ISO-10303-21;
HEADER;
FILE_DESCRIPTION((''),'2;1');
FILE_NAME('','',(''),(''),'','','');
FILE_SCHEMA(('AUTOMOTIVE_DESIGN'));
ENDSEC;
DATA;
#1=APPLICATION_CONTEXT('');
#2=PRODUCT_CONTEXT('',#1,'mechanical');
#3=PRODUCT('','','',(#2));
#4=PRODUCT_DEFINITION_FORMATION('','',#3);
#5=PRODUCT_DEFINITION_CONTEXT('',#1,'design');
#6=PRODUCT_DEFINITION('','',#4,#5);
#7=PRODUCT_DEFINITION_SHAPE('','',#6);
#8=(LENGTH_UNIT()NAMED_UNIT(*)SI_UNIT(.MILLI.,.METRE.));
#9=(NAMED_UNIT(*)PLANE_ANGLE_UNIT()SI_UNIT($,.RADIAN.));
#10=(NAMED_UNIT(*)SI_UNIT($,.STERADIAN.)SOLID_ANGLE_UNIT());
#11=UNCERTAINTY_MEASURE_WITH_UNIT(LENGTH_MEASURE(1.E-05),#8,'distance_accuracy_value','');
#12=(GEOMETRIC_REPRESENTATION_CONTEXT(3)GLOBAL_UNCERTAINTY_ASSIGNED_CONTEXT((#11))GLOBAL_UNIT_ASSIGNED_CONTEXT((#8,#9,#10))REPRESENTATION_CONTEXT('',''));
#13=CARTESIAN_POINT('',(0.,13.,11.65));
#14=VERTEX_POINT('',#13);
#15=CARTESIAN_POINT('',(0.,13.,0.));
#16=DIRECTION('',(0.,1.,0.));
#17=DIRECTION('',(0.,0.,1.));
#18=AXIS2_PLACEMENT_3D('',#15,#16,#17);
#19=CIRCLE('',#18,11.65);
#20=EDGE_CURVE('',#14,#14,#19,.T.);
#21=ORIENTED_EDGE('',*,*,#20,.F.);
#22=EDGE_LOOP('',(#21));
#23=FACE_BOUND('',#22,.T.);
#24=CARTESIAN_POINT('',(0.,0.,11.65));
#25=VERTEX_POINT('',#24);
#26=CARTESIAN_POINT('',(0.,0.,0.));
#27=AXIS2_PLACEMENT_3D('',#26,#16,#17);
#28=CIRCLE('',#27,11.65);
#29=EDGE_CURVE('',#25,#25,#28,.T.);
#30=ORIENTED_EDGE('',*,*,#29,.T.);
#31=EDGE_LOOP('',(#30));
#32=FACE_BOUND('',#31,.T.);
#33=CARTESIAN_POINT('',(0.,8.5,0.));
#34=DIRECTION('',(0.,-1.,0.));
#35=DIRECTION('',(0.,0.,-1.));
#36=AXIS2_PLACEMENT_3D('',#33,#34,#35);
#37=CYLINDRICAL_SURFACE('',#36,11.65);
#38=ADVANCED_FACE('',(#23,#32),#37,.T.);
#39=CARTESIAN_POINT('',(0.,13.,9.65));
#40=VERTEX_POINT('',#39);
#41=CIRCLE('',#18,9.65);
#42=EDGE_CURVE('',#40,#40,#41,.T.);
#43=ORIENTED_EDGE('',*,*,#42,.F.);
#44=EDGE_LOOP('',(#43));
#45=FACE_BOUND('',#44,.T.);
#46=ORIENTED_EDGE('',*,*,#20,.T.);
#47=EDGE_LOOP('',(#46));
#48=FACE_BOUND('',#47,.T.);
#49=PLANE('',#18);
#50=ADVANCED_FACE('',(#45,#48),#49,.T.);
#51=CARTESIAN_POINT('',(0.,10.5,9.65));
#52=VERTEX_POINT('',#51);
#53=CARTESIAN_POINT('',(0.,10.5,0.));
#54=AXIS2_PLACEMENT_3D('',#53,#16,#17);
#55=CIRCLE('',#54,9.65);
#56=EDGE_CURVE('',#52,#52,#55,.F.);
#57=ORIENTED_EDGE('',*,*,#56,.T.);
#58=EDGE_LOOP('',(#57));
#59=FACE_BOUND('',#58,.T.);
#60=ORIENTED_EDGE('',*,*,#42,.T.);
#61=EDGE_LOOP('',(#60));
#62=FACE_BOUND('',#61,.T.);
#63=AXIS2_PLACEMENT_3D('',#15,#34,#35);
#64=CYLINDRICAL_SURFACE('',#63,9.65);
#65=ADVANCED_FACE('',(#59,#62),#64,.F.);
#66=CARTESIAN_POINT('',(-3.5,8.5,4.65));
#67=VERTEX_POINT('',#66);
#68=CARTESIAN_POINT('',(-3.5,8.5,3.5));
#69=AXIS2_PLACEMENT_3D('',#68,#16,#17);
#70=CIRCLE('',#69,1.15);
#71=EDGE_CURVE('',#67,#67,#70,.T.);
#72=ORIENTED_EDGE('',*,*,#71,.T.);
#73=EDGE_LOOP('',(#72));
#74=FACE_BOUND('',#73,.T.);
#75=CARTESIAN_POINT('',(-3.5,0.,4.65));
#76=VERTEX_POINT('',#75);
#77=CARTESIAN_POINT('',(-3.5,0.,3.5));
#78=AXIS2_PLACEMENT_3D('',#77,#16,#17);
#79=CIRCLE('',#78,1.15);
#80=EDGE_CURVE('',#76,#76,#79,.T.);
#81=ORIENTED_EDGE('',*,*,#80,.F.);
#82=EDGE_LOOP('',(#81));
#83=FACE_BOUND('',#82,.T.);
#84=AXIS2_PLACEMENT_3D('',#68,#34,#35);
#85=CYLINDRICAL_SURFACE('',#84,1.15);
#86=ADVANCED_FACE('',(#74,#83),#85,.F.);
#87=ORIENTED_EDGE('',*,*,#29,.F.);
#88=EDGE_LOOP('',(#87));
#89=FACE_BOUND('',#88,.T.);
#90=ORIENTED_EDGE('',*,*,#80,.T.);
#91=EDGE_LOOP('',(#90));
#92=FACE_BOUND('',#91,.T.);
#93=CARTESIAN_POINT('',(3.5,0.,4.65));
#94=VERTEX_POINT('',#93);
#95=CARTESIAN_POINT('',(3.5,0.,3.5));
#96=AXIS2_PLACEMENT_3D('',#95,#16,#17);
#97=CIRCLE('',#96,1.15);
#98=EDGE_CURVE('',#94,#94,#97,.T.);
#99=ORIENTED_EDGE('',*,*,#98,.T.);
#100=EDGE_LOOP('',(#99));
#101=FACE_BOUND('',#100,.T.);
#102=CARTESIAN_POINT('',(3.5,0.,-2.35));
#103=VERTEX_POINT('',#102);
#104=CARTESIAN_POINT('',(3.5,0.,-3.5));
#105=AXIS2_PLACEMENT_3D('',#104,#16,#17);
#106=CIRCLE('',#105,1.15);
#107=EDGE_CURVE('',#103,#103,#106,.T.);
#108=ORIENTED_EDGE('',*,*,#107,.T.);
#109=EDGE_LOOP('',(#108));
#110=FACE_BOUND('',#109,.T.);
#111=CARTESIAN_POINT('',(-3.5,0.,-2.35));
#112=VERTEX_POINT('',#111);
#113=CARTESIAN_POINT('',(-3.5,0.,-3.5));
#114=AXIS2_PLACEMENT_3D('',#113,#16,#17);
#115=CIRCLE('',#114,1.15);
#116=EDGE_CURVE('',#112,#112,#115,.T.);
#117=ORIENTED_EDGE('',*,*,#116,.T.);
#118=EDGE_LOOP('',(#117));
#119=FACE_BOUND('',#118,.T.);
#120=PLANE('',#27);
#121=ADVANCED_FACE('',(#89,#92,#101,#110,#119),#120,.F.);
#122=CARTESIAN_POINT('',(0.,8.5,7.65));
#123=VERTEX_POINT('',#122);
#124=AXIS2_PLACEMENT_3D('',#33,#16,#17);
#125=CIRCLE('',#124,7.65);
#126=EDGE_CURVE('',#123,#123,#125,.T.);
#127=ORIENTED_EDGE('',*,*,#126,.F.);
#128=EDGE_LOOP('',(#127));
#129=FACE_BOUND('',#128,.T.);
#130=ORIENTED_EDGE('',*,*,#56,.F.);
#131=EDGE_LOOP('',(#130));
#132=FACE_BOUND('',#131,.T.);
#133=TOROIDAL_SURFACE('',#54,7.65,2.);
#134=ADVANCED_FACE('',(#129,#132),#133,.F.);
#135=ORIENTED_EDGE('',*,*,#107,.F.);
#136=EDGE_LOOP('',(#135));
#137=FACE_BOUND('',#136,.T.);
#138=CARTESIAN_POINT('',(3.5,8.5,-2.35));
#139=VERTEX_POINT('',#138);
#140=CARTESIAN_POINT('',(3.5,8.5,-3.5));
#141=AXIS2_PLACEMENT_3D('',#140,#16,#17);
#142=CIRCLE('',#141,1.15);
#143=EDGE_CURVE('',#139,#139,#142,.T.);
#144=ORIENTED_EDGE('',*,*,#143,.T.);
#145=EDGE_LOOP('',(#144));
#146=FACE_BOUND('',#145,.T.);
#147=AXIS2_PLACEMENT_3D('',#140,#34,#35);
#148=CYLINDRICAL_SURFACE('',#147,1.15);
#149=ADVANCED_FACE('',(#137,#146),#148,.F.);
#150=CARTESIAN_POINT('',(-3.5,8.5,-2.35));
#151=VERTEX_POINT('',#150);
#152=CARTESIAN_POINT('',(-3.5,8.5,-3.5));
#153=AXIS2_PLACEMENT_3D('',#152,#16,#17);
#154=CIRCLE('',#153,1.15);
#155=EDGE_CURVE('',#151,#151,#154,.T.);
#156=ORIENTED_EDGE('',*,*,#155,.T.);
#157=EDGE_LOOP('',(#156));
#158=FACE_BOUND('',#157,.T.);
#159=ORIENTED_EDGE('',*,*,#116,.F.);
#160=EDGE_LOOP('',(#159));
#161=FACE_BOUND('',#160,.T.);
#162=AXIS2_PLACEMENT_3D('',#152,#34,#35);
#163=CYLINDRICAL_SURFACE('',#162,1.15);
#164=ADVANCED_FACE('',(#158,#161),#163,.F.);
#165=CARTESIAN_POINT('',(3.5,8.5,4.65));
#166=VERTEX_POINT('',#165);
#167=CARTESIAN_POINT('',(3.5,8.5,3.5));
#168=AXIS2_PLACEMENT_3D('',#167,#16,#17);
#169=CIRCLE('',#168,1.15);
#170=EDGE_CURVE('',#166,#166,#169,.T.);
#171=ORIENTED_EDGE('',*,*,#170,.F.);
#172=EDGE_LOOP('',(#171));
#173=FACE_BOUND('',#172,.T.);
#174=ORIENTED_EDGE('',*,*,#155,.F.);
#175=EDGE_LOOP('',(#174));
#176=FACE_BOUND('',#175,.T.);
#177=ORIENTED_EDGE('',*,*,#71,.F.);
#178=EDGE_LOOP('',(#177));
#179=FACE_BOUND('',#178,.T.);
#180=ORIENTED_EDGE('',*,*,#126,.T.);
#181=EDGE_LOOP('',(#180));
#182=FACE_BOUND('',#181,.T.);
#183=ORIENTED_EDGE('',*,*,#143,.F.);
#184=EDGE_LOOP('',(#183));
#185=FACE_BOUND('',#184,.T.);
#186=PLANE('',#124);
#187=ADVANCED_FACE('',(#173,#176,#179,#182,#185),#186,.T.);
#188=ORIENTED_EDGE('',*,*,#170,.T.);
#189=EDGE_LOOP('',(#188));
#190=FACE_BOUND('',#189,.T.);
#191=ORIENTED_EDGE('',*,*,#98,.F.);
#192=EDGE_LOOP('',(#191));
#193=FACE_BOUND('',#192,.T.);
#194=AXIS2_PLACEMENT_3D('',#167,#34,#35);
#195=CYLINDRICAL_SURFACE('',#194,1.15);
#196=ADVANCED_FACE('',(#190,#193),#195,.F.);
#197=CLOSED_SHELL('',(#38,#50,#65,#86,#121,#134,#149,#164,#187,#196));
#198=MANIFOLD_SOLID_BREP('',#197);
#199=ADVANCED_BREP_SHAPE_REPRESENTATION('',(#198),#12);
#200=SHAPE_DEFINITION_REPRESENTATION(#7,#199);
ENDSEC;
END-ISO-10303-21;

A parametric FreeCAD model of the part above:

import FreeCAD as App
import Part
import Sketcher

V = App.Vector
Q = App.Units.Quantity


def edges_at(feature, points):
    """Names of the edges that pass closest to the given points."""
    edges = feature.Shape.Edges
    near = lambda p: min(range(len(edges)), key=lambda i: edges[i].distToShape(Part.Vertex(*p))[0])
    return sorted({f"Edge{near(p) + 1}" for p in points})

doc = App.newDocument("Part")
body = doc.addObject("PartDesign::Body", "Body")

# Sketch on XZ plane
sketch1 = body.newObject("Sketcher::SketchObject", "Sketch")
sketch1.AttachmentSupport = (doc.getObject("XZ_Plane"), [""])
sketch1.MapMode = "FlatFace"
sketch1.addGeometry(Part.Circle(V(0, 0, 0), V(0, 0, 1), 11.7), False)
sketch1.addGeometry(Part.Circle(V(-3.5, -3.5, 0), V(0, 0, 1), 1.1), False)
sketch1.addGeometry(Part.Circle(V(-3.5, 3.5, 0), V(0, 0, 1), 1.1), False)
sketch1.addGeometry(Part.Circle(V(3.5, -3.5, 0), V(0, 0, 1), 1.1), False)
sketch1.addGeometry(Part.Circle(V(3.5, 3.5, 0), V(0, 0, 1), 1.1), False)
sketch1.addConstraint(Sketcher.Constraint("Coincident", 0, 3, -1, 1))
sketch1.addConstraint(Sketcher.Constraint("Equal", 1, 2))
sketch1.addConstraint(Sketcher.Constraint("Equal", 2, 3))
sketch1.addConstraint(Sketcher.Constraint("Equal", 3, 4))
sketch1.addConstraint(Sketcher.Constraint("Symmetric", 2, 3, 3, 3, -1, 1))
sketch1.addConstraint(Sketcher.Constraint("Symmetric", 1, 3, 4, 3, -1, 1))
sketch1.addConstraint(Sketcher.Constraint("Symmetric", 1, 3, 3, 3, -2))
sketch1.addConstraint(Sketcher.Constraint("Diameter", 0, Q("23.3 mm")))
sketch1.addConstraint(Sketcher.Constraint("Diameter", 1, Q("2.3 mm")))
sketch1.addConstraint(Sketcher.Constraint("DistanceY", 1, 3, 2, 3, Q("7 mm")))
sketch1.addConstraint(Sketcher.Constraint("DistanceX", 1, 3, 3, 3, Q("7 mm")))
pad1 = body.newObject("PartDesign::Pad", "Pad")
pad1.Profile = sketch1
pad1.Length = 8.5
pad1.Reversed = True

# Sketch on XZ plane
sketch2 = body.newObject("Sketcher::SketchObject", "Sketch001")
sketch2.AttachmentSupport = (doc.getObject("XZ_Plane"), [""])
sketch2.MapMode = "FlatFace"
sketch2.AttachmentOffset = App.Placement(V(0, 0, -8.5), App.Rotation())
sketch2.addGeometry(Part.Circle(V(0, 0, 0), V(0, 0, 1), 12), False)
sketch2.addGeometry(Part.Circle(V(0, 0, 0), V(0, 0, 1), 10), False)
sketch2.addConstraint(Sketcher.Constraint("Coincident", 0, 3, -1, 1))
sketch2.addConstraint(Sketcher.Constraint("Coincident", 1, 3, -1, 1))
sketch2.addConstraint(Sketcher.Constraint("Diameter", 0, Q("23.3 mm")))
sketch2.addConstraint(Sketcher.Constraint("Diameter", 1, Q("19.3 mm")))
pad2 = body.newObject("PartDesign::Pad", "Pad001")
pad2.Profile = sketch2
pad2.Length = 4.5
pad2.Reversed = True
doc.recompute()

fillet = body.newObject("PartDesign::Fillet", "Fillet")
fillet.Base = (pad2, edges_at(pad2, [(0, 8.5, -9.65)]))
fillet.Radius = 2

doc.recompute()
